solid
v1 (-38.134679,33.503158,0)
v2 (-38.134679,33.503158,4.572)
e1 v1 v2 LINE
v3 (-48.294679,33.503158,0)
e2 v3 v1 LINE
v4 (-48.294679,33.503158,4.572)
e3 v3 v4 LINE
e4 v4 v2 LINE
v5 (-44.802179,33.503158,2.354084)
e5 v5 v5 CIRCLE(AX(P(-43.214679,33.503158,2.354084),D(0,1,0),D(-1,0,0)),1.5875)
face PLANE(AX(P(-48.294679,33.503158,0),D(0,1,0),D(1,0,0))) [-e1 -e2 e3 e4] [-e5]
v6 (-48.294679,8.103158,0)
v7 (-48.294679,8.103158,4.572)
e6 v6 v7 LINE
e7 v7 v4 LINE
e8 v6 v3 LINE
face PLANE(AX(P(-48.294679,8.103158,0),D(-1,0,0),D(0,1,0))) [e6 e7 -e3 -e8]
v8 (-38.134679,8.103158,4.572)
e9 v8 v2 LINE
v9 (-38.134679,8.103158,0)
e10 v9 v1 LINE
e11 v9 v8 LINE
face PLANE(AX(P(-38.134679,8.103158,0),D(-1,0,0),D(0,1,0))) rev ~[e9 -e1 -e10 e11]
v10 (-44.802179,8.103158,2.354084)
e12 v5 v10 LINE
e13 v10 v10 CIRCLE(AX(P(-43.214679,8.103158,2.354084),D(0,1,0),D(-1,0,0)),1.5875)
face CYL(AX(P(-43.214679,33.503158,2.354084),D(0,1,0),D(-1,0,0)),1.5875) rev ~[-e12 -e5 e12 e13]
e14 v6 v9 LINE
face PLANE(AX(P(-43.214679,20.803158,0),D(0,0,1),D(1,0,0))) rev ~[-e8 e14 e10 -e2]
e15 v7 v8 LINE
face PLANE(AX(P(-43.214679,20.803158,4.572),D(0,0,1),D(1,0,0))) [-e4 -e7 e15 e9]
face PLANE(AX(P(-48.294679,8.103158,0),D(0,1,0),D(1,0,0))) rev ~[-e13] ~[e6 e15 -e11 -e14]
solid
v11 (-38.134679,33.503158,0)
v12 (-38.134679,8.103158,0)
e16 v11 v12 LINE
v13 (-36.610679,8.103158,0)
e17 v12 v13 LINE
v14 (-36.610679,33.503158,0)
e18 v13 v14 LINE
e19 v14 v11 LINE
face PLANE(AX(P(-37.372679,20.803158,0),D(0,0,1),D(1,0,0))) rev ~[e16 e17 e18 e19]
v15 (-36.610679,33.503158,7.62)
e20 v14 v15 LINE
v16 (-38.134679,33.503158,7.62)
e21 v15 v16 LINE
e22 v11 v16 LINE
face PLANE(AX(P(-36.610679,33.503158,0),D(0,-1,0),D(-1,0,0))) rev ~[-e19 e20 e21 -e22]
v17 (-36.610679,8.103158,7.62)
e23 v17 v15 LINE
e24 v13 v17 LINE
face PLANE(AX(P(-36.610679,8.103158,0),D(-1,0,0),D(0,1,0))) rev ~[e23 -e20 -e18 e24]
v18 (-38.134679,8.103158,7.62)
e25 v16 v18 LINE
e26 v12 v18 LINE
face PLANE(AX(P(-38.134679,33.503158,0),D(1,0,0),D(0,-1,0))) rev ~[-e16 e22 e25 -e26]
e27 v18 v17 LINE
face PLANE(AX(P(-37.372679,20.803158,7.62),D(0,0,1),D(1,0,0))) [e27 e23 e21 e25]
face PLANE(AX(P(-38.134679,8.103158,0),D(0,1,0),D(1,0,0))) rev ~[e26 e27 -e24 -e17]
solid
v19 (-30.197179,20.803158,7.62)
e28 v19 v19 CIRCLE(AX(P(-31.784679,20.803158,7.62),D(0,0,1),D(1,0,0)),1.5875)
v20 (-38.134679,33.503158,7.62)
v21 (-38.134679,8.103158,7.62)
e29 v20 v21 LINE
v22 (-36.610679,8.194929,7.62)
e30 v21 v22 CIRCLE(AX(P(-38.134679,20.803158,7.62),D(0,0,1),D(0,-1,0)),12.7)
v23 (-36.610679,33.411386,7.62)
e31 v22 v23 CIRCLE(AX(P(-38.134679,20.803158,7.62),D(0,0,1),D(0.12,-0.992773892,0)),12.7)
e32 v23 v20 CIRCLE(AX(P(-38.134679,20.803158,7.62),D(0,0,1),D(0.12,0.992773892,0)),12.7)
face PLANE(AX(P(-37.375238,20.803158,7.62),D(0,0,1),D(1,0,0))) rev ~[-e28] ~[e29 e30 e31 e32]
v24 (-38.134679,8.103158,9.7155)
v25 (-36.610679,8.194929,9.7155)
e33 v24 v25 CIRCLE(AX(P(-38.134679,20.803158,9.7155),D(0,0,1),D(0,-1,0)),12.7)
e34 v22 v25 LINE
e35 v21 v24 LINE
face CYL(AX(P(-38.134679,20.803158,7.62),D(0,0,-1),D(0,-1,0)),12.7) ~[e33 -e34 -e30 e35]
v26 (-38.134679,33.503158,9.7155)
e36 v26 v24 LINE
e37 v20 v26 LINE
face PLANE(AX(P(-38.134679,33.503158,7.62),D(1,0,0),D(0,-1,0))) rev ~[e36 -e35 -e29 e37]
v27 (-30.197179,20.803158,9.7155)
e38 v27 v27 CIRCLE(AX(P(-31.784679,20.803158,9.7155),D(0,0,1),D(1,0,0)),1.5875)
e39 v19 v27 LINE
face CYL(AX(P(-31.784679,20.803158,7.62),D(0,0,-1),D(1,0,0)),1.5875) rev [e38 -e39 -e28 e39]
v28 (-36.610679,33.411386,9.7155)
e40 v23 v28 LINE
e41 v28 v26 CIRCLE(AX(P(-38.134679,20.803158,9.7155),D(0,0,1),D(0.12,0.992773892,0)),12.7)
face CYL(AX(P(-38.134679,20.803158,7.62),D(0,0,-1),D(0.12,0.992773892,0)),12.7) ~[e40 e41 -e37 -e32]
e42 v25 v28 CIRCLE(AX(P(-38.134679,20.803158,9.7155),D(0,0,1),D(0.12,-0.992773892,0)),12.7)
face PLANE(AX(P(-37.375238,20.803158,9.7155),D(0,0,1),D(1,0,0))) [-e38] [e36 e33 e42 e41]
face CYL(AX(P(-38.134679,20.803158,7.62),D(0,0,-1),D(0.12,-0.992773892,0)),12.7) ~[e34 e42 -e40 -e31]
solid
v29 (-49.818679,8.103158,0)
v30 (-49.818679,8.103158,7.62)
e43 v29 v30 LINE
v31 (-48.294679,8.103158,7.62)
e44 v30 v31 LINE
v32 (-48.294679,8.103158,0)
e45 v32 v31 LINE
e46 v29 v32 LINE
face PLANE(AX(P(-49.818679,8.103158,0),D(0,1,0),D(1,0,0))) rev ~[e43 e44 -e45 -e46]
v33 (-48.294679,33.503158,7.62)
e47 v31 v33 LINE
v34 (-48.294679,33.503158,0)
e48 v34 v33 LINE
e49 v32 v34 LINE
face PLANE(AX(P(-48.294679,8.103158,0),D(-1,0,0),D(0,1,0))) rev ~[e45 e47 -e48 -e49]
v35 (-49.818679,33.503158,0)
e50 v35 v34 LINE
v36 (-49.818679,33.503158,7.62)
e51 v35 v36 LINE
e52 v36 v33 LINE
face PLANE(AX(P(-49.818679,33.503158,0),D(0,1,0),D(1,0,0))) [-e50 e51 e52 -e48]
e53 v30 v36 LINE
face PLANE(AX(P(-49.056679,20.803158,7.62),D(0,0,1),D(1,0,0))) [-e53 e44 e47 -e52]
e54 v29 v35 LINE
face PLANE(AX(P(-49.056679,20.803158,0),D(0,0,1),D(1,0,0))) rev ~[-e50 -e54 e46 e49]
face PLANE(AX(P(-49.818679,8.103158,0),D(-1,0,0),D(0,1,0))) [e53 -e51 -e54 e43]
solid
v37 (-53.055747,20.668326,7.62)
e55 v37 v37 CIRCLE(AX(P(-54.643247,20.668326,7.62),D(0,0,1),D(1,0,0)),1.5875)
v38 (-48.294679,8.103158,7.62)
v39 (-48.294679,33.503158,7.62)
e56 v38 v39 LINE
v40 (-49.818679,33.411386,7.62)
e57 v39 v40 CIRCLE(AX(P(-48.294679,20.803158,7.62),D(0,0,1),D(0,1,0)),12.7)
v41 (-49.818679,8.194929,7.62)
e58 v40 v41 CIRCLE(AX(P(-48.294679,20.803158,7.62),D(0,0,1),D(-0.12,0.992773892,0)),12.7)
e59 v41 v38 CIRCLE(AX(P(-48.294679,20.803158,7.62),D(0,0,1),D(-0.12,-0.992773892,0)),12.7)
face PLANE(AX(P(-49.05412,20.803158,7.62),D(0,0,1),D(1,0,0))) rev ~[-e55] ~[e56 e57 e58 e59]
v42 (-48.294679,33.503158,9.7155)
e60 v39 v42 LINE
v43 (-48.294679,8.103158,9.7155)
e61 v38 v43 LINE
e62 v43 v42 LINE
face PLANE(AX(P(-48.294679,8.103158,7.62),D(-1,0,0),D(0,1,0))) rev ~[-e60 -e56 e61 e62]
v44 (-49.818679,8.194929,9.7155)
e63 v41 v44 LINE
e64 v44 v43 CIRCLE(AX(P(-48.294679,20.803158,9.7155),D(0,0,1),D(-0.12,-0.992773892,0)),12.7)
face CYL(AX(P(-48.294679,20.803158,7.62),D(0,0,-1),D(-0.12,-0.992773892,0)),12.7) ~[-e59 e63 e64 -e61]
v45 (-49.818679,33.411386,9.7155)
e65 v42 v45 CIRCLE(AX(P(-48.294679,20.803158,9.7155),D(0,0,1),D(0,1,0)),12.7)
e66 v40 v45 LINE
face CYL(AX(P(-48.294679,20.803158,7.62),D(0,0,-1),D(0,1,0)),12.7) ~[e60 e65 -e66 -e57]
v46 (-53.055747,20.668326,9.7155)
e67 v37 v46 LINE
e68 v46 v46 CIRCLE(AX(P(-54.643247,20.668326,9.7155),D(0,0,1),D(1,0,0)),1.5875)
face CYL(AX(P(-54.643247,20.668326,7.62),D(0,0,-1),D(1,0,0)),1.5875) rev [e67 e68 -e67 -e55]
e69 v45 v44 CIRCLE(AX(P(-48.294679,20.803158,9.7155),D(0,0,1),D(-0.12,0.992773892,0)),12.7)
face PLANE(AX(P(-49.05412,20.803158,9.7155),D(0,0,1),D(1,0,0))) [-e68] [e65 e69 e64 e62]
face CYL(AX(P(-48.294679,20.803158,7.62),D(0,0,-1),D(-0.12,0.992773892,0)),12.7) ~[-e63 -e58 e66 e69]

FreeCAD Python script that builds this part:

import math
import FreeCAD as App
import Part
import Sketcher
Q = App.Units.Quantity

doc = App.newDocument("Part")
body = doc.addObject("PartDesign::Body", "Body")

sketch1 = doc.addObject("Sketcher::SketchObject", "Sketch")
body.addObject(sketch1)
sketch1.AttachmentSupport = (doc.XY_Plane, [""])
sketch1.MapMode = "FlatFace"
sketch1.addGeometry(Part.LineSegment(App.Vector(-48, 34, 0), App.Vector(-48, 8, 0)), False)
sketch1.addGeometry(Part.LineSegment(App.Vector(-48, 8, 0), App.Vector(-38, 8, 0)), False)
sketch1.addGeometry(Part.LineSegment(App.Vector(-38, 8, 0), App.Vector(-38, 34, 0)), False)
sketch1.addGeometry(Part.LineSegment(App.Vector(-38, 34, 0), App.Vector(-48, 34, 0)), False)
sketch1.addConstraint(Sketcher.Constraint("Coincident", 0, 2, 1, 1))
sketch1.addConstraint(Sketcher.Constraint("Coincident", 1, 2, 2, 1))
sketch1.addConstraint(Sketcher.Constraint("Coincident", 2, 2, 3, 1))
sketch1.addConstraint(Sketcher.Constraint("Coincident", 3, 2, 0, 1))
sketch1.addConstraint(Sketcher.Constraint("Vertical", 0))
sketch1.addConstraint(Sketcher.Constraint("Horizontal", 1))
sketch1.addConstraint(Sketcher.Constraint("Vertical", 2))
sketch1.addConstraint(Sketcher.Constraint("Horizontal", 3))
sketch1.addConstraint(Sketcher.Constraint("DistanceY", 0, 2, 0, 1, Q("1 in")))
sketch1.addConstraint(Sketcher.Constraint("DistanceX", 1, 1, 1, 2, Q("0.4 in")))
sketch1.addConstraint(Sketcher.Constraint("DistanceX", 0, 2, -1, 1, 48.294679))
sketch1.addConstraint(Sketcher.Constraint("DistanceY", -1, 1, 0, 2, 8.103158))
pad1 = doc.addObject("PartDesign::Pad", "Pad")
body.addObject(pad1)
pad1.Profile = sketch1
pad1.Length = Q("0.18 in")

sketch2 = doc.addObject("Sketcher::SketchObject", "Sketch001")
body.addObject(sketch2)
sketch2.AttachmentSupport = (doc.XZ_Plane, [""])
sketch2.MapMode = "FlatFace"
sketch2.AttachmentOffset = App.Placement(App.Vector(0, 0, -33.503158), App.Rotation())
sketch2.addGeometry(Part.Circle(App.Vector(-43.2, 2.4, 0), App.Vector(0, 0, 1), 1.6), False)
sketch2.addConstraint(Sketcher.Constraint("Diameter", 0, Q("0.125 in")))
sketch2.addConstraint(Sketcher.Constraint("DistanceX", 0, 3, -1, 1, 43.214679))
sketch2.addConstraint(Sketcher.Constraint("DistanceY", -1, 1, 0, 3, 2.354084))
pocket1 = doc.addObject("PartDesign::Pocket", "Pocket")
body.addObject(pocket1)
pocket1.Profile = sketch2
pocket1.Length = Q("1 in")
pocket1.Reversed = True
body2 = doc.addObject("PartDesign::Body", "Body001")

sketch3 = doc.addObject("Sketcher::SketchObject", "Sketch002")
body2.addObject(sketch3)
sketch3.AttachmentSupport = (doc.getObject("XY_Plane001"), [""])
sketch3.MapMode = "FlatFace"
sketch3.addGeometry(Part.LineSegment(App.Vector(-36.6, 33.5, 0), App.Vector(-38.1, 33.5, 0)), False)
sketch3.addGeometry(Part.LineSegment(App.Vector(-38.1, 33.5, 0), App.Vector(-38.1, 8.1, 0)), False)
sketch3.addGeometry(Part.LineSegment(App.Vector(-38.1, 8.1, 0), App.Vector(-36.6, 8.1, 0)), False)
sketch3.addGeometry(Part.LineSegment(App.Vector(-36.6, 8.1, 0), App.Vector(-36.6, 33.5, 0)), False)
sketch3.addConstraint(Sketcher.Constraint("Coincident", 0, 2, 1, 1))
sketch3.addConstraint(Sketcher.Constraint("Coincident", 1, 2, 2, 1))
sketch3.addConstraint(Sketcher.Constraint("Coincident", 2, 2, 3, 1))
sketch3.addConstraint(Sketcher.Constraint("Coincident", 3, 2, 0, 1))
sketch3.addConstraint(Sketcher.Constraint("Horizontal", 0))
sketch3.addConstraint(Sketcher.Constraint("Vertical", 1))
sketch3.addConstraint(Sketcher.Constraint("Horizontal", 2))
sketch3.addConstraint(Sketcher.Constraint("Vertical", 3))
sketch3.addConstraint(Sketcher.Constraint("DistanceY", 1, 2, 1, 1, Q("1 in")))
sketch3.addConstraint(Sketcher.Constraint("DistanceX", 0, 2, 0, 1, Q("0.06 in")))
sketch3.addConstraint(Sketcher.Constraint("DistanceX", 0, 2, -1, 1, 38.134679))
sketch3.addConstraint(Sketcher.Constraint("DistanceY", -1, 1, 0, 2, 33.503158))
pad2 = doc.addObject("PartDesign::Pad", "Pad001")
body2.addObject(pad2)
pad2.Profile = sketch3
pad2.Length = Q("0.3 in")
body3 = doc.addObject("PartDesign::Body", "Body002")

sketch4 = doc.addObject("Sketcher::SketchObject", "Sketch003")
body3.addObject(sketch4)
sketch4.AttachmentSupport = (doc.getObject("XY_Plane002"), [""])
sketch4.MapMode = "FlatFace"
sketch4.addGeometry(Part.LineSegment(App.Vector(-49.8, 33.5, 0), App.Vector(-49.8, 8.1, 0)), False)
sketch4.addGeometry(Part.LineSegment(App.Vector(-49.8, 8.1, 0), App.Vector(-48.3, 8.1, 0)), False)
sketch4.addGeometry(Part.LineSegment(App.Vector(-48.3, 8.1, 0), App.Vector(-48.3, 33.5, 0)), False)
sketch4.addGeometry(Part.LineSegment(App.Vector(-48.3, 33.5, 0), App.Vector(-49.8, 33.5, 0)), False)
sketch4.addConstraint(Sketcher.Constraint("Coincident", 0, 2, 1, 1))
sketch4.addConstraint(Sketcher.Constraint("Coincident", 1, 2, 2, 1))
sketch4.addConstraint(Sketcher.Constraint("Coincident", 2, 2, 3, 1))
sketch4.addConstraint(Sketcher.Constraint("Coincident", 3, 2, 0, 1))
sketch4.addConstraint(Sketcher.Constraint("Vertical", 0))
sketch4.addConstraint(Sketcher.Constraint("Horizontal", 1))
sketch4.addConstraint(Sketcher.Constraint("Vertical", 2))
sketch4.addConstraint(Sketcher.Constraint("Horizontal", 3))
sketch4.addConstraint(Sketcher.Constraint("DistanceY", 0, 2, 0, 1, Q("1 in")))
sketch4.addConstraint(Sketcher.Constraint("DistanceX", 1, 1, 1, 2, Q("0.06 in")))
sketch4.addConstraint(Sketcher.Constraint("DistanceX", 0, 2, -1, 1, 49.818679))
sketch4.addConstraint(Sketcher.Constraint("DistanceY", -1, 1, 0, 2, 8.103158))
pad3 = doc.addObject("PartDesign::Pad", "Pad002")
body3.addObject(pad3)
pad3.Profile = sketch4
pad3.Length = Q("0.3 in")
body4 = doc.addObject("PartDesign::Body", "Body003")

sketch5 = doc.addObject("Sketcher::SketchObject", "Sketch004")
body4.addObject(sketch5)
sketch5.AttachmentSupport = (doc.getObject("XY_Plane003"), [""])
sketch5.MapMode = "FlatFace"
sketch5.AttachmentOffset = App.Placement(App.Vector(0, 0, 0.3 * 25.4), App.Rotation())
sketch5.addGeometry(Part.LineSegment(App.Vector(-48.3, 8.1, 0), App.Vector(-48.3, 33.5, 0)), False)
sketch5.addGeometry(Part.ArcOfCircle(Part.Circle(App.Vector(-48.3, 20.8, 0), App.Vector(0, 0, 1), 12.7), math.radians(90), math.radians(96.89)), False)
sketch5.addGeometry(Part.ArcOfCircle(Part.Circle(App.Vector(-48.3, 20.8, 0), App.Vector(0, 0, 1), 12.7), math.radians(97), math.radians(263)), False)
sketch5.addGeometry(Part.ArcOfCircle(Part.Circle(App.Vector(-48.3, 20.8, 0), App.Vector(0, 0, 1), 12.7), math.radians(-96.89), math.radians(-90)), False)
sketch5.addGeometry(Part.Circle(App.Vector(-54.6, 20.7, 0), App.Vector(0, 0, 1), 1.6), False)
sketch5.addConstraint(Sketcher.Constraint("Coincident", 0, 2, 1, 1))
sketch5.addConstraint(Sketcher.Constraint("Tangent", 1, 2, 2, 1))
sketch5.addConstraint(Sketcher.Constraint("Tangent", 2, 2, 3, 1))
sketch5.addConstraint(Sketcher.Constraint("Coincident", 3, 2, 0, 1))
sketch5.addConstraint(Sketcher.Constraint("Vertical", 0))
sketch5.addConstraint(Sketcher.Constraint("Coincident", 3, 3, 1, 3))
sketch5.addConstraint(Sketcher.Constraint("Vertical", 3, 3, 0, 2))
sketch5.addConstraint(Sketcher.Constraint("Vertical", 1, 2, 2, 2))
sketch5.addConstraint(Sketcher.Constraint("Radius", 1, Q("0.5 in")))
sketch5.addConstraint(Sketcher.Constraint("Diameter", 4, Q("0.125 in")))
sketch5.addConstraint(Sketcher.Constraint("DistanceX", 1, 2, 0, 2, Q("0.06 in")))
sketch5.addConstraint(Sketcher.Constraint("DistanceX", 1, 3, -1, 1, 48.294679))
sketch5.addConstraint(Sketcher.Constraint("DistanceY", -1, 1, 2, 2, 8.194929))
sketch5.addConstraint(Sketcher.Constraint("DistanceX", 4, 3, 1, 3, 6.348568))
sketch5.addConstraint(Sketcher.Constraint("DistanceY", 4, 3, 1, 3, 0.134832))
pad4 = doc.addObject("PartDesign::Pad", "Pad003")
body4.addObject(pad4)
pad4.Profile = sketch5
pad4.Length = Q("0.0825 in")
body5 = doc.addObject("PartDesign::Body", "Body004")

sketch6 = doc.addObject("Sketcher::SketchObject", "Sketch005")
body5.addObject(sketch6)
sketch6.AttachmentSupport = (doc.getObject("XY_Plane004"), [""])
sketch6.MapMode = "FlatFace"
sketch6.AttachmentOffset = App.Placement(App.Vector(0, 0, 0.3 * 25.4), App.Rotation())
sketch6.addGeometry(Part.LineSegment(App.Vector(-38.1, 33.5, 0), App.Vector(-38.1, 8.1, 0)), False)
sketch6.addGeometry(Part.ArcOfCircle(Part.Circle(App.Vector(-38.1, 20.8, 0), App.Vector(0, 0, 1), 12.7), math.radians(-90), math.radians(-83.11)), False)
sketch6.addGeometry(Part.ArcOfCircle(Part.Circle(App.Vector(-38.1, 20.8, 0), App.Vector(0, 0, 1), 12.7), math.radians(-83), math.radians(83)), False)
sketch6.addGeometry(Part.ArcOfCircle(Part.Circle(App.Vector(-38.1, 20.8, 0), App.Vector(0, 0, 1), 12.7), math.radians(83.11), math.radians(90)), False)
sketch6.addGeometry(Part.Circle(App.Vector(-31.8, 20.8, 0), App.Vector(0, 0, 1), 1.6), False)
sketch6.addConstraint(Sketcher.Constraint("Coincident", 0, 2, 1, 1))
sketch6.addConstraint(Sketcher.Constraint("Tangent", 1, 2, 2, 1))
sketch6.addConstraint(Sketcher.Constraint("Tangent", 2, 2, 3, 1))
sketch6.addConstraint(Sketcher.Constraint("Coincident", 3, 2, 0, 1))
sketch6.addConstraint(Sketcher.Constraint("Vertical", 0))
sketch6.addConstraint(Sketcher.Constraint("Coincident", 3, 3, 1, 3))
sketch6.addConstraint(Sketcher.Constraint("Horizontal", 3, 3, 4, 3))
sketch6.addConstraint(Sketcher.Constraint("Vertical", 3, 3, 0, 2))
sketch6.addConstraint(Sketcher.Constraint("Vertical", 1, 2, 2, 2))
sketch6.addConstraint(Sketcher.Constraint("Radius", 1, Q("0.5 in")))
sketch6.addConstraint(Sketcher.Constraint("Diameter", 4, Q("0.125 in")))
sketch6.addConstraint(Sketcher.Constraint("DistanceX", 3, 3, 4, 3, Q("0.25 in")))
sketch6.addConstraint(Sketcher.Constraint("DistanceX", 0, 2, 1, 2, Q("0.06 in")))
sketch6.addConstraint(Sketcher.Constraint("DistanceX", 1, 3, -1, 1, 38.134679))
sketch6.addConstraint(Sketcher.Constraint("DistanceY", -1, 1, 1, 2, 8.194929))
pad5 = doc.addObject("PartDesign::Pad", "Pad004")
body5.addObject(pad5)
pad5.Profile = sketch6
pad5.Length = Q("0.0825 in")

doc.recompute()
